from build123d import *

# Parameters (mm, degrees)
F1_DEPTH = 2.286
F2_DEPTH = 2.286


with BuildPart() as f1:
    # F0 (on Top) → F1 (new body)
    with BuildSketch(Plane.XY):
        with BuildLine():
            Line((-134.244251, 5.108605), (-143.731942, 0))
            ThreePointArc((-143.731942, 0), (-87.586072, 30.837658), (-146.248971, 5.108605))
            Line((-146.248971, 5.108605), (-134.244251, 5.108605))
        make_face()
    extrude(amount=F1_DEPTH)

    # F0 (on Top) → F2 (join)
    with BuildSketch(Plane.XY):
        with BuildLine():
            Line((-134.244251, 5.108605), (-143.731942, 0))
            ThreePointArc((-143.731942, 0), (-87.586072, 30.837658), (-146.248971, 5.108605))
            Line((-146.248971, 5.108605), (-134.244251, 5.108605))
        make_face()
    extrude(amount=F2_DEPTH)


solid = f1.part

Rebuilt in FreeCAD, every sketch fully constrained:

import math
import FreeCAD as App
import Part
import Sketcher

V = App.Vector
Q = App.Units.Quantity

doc = App.newDocument("Part")
body = doc.addObject("PartDesign::Body", "Body")

sketch1 = doc.addObject("Sketcher::SketchObject", "Sketch")
body.addObject(sketch1)
sketch1.AttachmentSupport = (doc.XY_Plane, [""])
sketch1.MapMode = "FlatFace"
sketch1.addGeometry(Part.LineSegment(V(-134, 5, 0), V(-144, 0, 0)), False)
sketch1.addGeometry(Part.ArcOfCircle(Part.Circle(V(-116, 17, 0), V(0, 0, 1), 32), math.radians(-149), math.radians(201)), False)
sketch1.addGeometry(Part.LineSegment(V(-146, 5, 0), V(-134, 5, 0)), False)
sketch1.addConstraint(Sketcher.Constraint("Coincident", 0, 2, 1, 1))
sketch1.addConstraint(Sketcher.Constraint("Coincident", 1, 2, 2, 1))
sketch1.addConstraint(Sketcher.Constraint("Coincident", 2, 2, 0, 1))
sketch1.addConstraint(Sketcher.Constraint("Horizontal", 2))
sketch1.addConstraint(Sketcher.Constraint("PointOnObject", 0, 2, -1))
sketch1.addConstraint(Sketcher.Constraint("Radius", 1, Q("32.060272 mm")))
sketch1.addConstraint(Sketcher.Constraint("DistanceX", 2, 1, 2, 2, Q("12.00472 mm")))
sketch1.addConstraint(Sketcher.Constraint("DistanceY", -1, 1, 1, 3, Q("16.667981 mm")))
sketch1.addConstraint(Sketcher.Constraint("DistanceX", 0, 2, -1, 1, Q("143.731942 mm")))
sketch1.addConstraint(Sketcher.Constraint("DistanceX", 1, 2, -1, 1, Q("146.248971 mm")))
pad1 = doc.addObject("PartDesign::Pad", "Pad")
body.addObject(pad1)
pad1.Profile = sketch1
pad1.Length = Q("0.09 in")

sketch2 = doc.addObject("Sketcher::SketchObject", "Sketch001")
body.addObject(sketch2)
sketch2.AttachmentSupport = (doc.XY_Plane, [""])
sketch2.MapMode = "FlatFace"
sketch2.addGeometry(Part.LineSegment(V(-134, 5, 0), V(-144, 0, 0)), False)
sketch2.addGeometry(Part.ArcOfCircle(Part.Circle(V(-116, 17, 0), V(0, 0, 1), 32), math.radians(-149), math.radians(201)), False)
sketch2.addGeometry(Part.LineSegment(V(-146, 5, 0), V(-134, 5, 0)), False)
sketch2.addConstraint(Sketcher.Constraint("Coincident", 0, 2, 1, 1))
sketch2.addConstraint(Sketcher.Constraint("Coincident", 1, 2, 2, 1))
sketch2.addConstraint(Sketcher.Constraint("Coincident", 2, 2, 0, 1))
sketch2.addConstraint(Sketcher.Constraint("Horizontal", 2))
sketch2.addConstraint(Sketcher.Constraint("PointOnObject", 0, 2, -1))
sketch2.addConstraint(Sketcher.Constraint("Radius", 1, Q("32.060272 mm")))
sketch2.addConstraint(Sketcher.Constraint("DistanceX", 2, 1, 2, 2, Q("12.00472 mm")))
sketch2.addConstraint(Sketcher.Constraint("DistanceY", -1, 1, 1, 3, Q("16.667981 mm")))
sketch2.addConstraint(Sketcher.Constraint("DistanceX", 0, 2, -1, 1, Q("143.731942 mm")))
sketch2.addConstraint(Sketcher.Constraint("DistanceX", 1, 2, -1, 1, Q("146.248971 mm")))
pad2 = doc.addObject("PartDesign::Pad", "Pad001")
body.addObject(pad2)
pad2.Profile = sketch2
pad2.Length = Q("0.09 in")

doc.recompute()
